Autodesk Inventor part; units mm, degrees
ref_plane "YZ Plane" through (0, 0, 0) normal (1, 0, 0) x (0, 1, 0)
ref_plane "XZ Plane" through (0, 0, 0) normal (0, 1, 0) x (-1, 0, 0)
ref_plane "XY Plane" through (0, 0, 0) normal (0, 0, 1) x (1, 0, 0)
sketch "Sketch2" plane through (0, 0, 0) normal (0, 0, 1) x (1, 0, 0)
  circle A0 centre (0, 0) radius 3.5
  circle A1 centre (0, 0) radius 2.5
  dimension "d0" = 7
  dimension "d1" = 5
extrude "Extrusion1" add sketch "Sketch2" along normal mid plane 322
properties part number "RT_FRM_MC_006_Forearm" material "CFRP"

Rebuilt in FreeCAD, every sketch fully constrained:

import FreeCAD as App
import Part
import Sketcher

doc = App.newDocument("Part")
body = doc.addObject("PartDesign::Body", "Body")

# Sketch on XY plane
sketch1 = body.newObject("Sketcher::SketchObject", "Sketch")
sketch1.AttachmentSupport = (doc.getObject("XY_Plane"), [""])
sketch1.MapMode = "FlatFace"
sketch1.addGeometry([
    Part.Circle(App.Vector(0, 0, 0), App.Vector(0, 0, 1), 3.5),
    Part.Circle(App.Vector(0, 0, 0), App.Vector(0, 0, 1), 2.5),
], False)
sketch1.addConstraint([
    Sketcher.Constraint("Coincident", 0, 3, -1, 1),
    Sketcher.Constraint("Coincident", 1, 3, -1, 1),
    Sketcher.Constraint("Diameter", 0, 7.0),
    Sketcher.Constraint("Diameter", 1, 5.0),
])
pad1 = body.newObject("PartDesign::Pad", "Pad")
pad1.Profile = sketch1
pad1.Length = 322
pad1.Midplane = True

doc.recompute()
